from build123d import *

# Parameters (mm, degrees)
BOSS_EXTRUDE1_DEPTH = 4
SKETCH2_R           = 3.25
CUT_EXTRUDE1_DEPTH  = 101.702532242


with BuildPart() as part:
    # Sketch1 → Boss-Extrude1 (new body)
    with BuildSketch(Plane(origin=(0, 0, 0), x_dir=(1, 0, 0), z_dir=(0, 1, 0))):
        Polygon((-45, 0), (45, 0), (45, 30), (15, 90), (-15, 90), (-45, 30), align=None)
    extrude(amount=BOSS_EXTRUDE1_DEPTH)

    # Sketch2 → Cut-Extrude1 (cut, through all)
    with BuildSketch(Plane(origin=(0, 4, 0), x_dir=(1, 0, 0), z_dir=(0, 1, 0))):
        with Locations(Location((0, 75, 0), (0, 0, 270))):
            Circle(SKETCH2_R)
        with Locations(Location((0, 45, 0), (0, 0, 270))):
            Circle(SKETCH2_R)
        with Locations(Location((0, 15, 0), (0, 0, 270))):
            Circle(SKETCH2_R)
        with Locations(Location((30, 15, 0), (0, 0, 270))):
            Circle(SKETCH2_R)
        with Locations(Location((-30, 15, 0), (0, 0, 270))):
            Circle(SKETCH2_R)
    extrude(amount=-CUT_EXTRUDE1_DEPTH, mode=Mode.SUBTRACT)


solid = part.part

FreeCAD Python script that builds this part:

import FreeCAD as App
import Part
import Sketcher
Q = App.Units.Quantity

doc = App.newDocument("Part")
body = doc.addObject("PartDesign::Body", "Body")

# Sketch on XZ plane
sketch1 = body.newObject("Sketcher::SketchObject", "Sketch")
sketch1.AttachmentSupport = (doc.getObject("XZ_Plane"), [""])
sketch1.MapMode = "FlatFace"
sketch1.addGeometry([
    Part.LineSegment(App.Vector(-45, 0, 0), App.Vector(45, 0, 0)),  # 0
    Part.LineSegment(App.Vector(45, 0, 0), App.Vector(45, -30, 0)),  # 1
    Part.LineSegment(App.Vector(45, -30, 0), App.Vector(15, -90, 0)),  # 2
    Part.LineSegment(App.Vector(15, -90, 0), App.Vector(-15, -90, 0)),  # 3
    Part.LineSegment(App.Vector(-15, -90, 0), App.Vector(-45, -30, 0)),  # 4
    Part.LineSegment(App.Vector(-45, -30, 0), App.Vector(-45, 0, 0)),  # 5
], False)
sketch1.addConstraint([
    Sketcher.Constraint("Coincident", 0, 2, 1, 1),
    Sketcher.Constraint("Coincident", 1, 2, 2, 1),
    Sketcher.Constraint("Coincident", 2, 2, 3, 1),
    Sketcher.Constraint("Coincident", 3, 2, 4, 1),
    Sketcher.Constraint("Coincident", 4, 2, 5, 1),
    Sketcher.Constraint("Coincident", 5, 2, 0, 1),
    Sketcher.Constraint("Horizontal", 0),
    Sketcher.Constraint("Vertical", 1),
    Sketcher.Constraint("Horizontal", 3),
    Sketcher.Constraint("Vertical", 5),
    Sketcher.Constraint("Symmetric", 0, 2, 5, 2, -1, 1),
    Sketcher.Constraint("Horizontal", 1, 2, 4, 2),
    Sketcher.Constraint("Equal", 3, 1),
    Sketcher.Constraint("Equal", 2, 4),
    Sketcher.Constraint("DistanceX", 0, 1, 0, 2, Q("90 mm")),
    Sketcher.Constraint("DistanceX", 3, 2, 3, 1, Q("30 mm")),
    Sketcher.Constraint("DistanceY", 2, 2, -1, 1, Q("90 mm")),
])
pad1 = body.newObject("PartDesign::Pad", "Pad")
pad1.Profile = sketch1
pad1.Length = 4
pad1.Reversed = True

# Sketch on XZ plane
sketch2 = body.newObject("Sketcher::SketchObject", "Sketch001")
sketch2.AttachmentSupport = (doc.getObject("XZ_Plane"), [""])
sketch2.MapMode = "FlatFace"
sketch2.AttachmentOffset = App.Placement(App.Vector(0, 0, -4), App.Rotation())
sketch2.addGeometry([
    Part.Circle(App.Vector(0, -75, 0), App.Vector(0, 0, 1), 3.2),  # 0
    Part.Circle(App.Vector(0, -45, 0), App.Vector(0, 0, 1), 3.2),  # 1
    Part.Circle(App.Vector(0, -15, 0), App.Vector(0, 0, 1), 3.2),  # 2
    Part.Circle(App.Vector(30, -15, 0), App.Vector(0, 0, 1), 3.2),  # 3
    Part.Circle(App.Vector(-30, -15, 0), App.Vector(0, 0, 1), 3.2),  # 4
], False)
sketch2.addConstraint([
    Sketcher.Constraint("Equal", 0, 1),
    Sketcher.Constraint("Equal", 1, 2),
    Sketcher.Constraint("Equal", 2, 3),
    Sketcher.Constraint("Equal", 3, 4),
    Sketcher.Constraint("Symmetric", 3, 3, 4, 3, -2),
    Sketcher.Constraint("PointOnObject", 0, 3, -2),
    Sketcher.Constraint("PointOnObject", 1, 3, -2),
    Sketcher.Constraint("PointOnObject", 2, 3, -2),
    Sketcher.Constraint("Horizontal", 2, 3, 3, 3),
    Sketcher.Constraint("Diameter", 0, Q("6.5 mm")),
    Sketcher.Constraint("DistanceY", 0, 3, -1, 1, Q("75 mm")),
    Sketcher.Constraint("DistanceY", 1, 3, -1, 1, Q("45 mm")),
    Sketcher.Constraint("DistanceY", 2, 3, -1, 1, Q("15 mm")),
    Sketcher.Constraint("DistanceX", -1, 1, 3, 3, Q("30 mm")),
])
pocket1 = body.newObject("PartDesign::Pocket", "Pocket")
pocket1.Profile = sketch2
pocket1.Type = "ThroughAll"
pocket1.Reversed = True

doc.recompute()
